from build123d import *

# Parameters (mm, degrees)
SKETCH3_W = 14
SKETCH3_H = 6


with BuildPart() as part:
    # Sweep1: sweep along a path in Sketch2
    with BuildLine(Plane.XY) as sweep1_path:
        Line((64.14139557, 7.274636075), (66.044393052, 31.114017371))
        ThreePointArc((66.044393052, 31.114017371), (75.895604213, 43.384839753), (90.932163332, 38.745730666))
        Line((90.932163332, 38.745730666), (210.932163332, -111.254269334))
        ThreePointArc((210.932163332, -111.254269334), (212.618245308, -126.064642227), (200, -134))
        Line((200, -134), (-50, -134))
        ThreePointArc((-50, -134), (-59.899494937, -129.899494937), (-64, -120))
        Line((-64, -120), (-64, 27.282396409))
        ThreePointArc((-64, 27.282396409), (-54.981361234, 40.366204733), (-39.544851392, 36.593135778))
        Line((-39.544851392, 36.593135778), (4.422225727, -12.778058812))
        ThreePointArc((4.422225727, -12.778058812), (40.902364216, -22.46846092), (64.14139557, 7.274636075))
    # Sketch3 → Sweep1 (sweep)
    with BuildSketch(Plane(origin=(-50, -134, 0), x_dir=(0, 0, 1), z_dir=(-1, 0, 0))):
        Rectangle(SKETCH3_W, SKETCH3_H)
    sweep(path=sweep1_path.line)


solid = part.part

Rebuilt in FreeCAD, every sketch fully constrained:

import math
import FreeCAD as App
import Part
import Sketcher

V = App.Vector


def add_polygon(sketch, points):
    """Adds a closed chain of lines whose ends are joined by coincident constraints."""
    first, n = sketch.GeometryCount, len(points)
    for a, b in zip(points, points[1:] + points[:1]):
        sketch.addGeometry(Part.LineSegment(App.Vector(*a, 0), App.Vector(*b, 0)), False)
    for i in range(n):
        sketch.addConstraint(Sketcher.Constraint("Coincident", first + i, 2, first + (i + 1) % n, 1))

doc = App.newDocument("Part")
body = doc.addObject("PartDesign::Body", "Body")

# Sketch on YZ plane
sketch1 = body.newObject("Sketcher::SketchObject", "Sketch")
sketch1.AttachmentSupport = (doc.getObject("YZ_Plane"), [""])
sketch1.MapMode = "FlatFace"
sketch1.AttachmentOffset = App.Placement(V(0, 0, -50), App.Rotation())
add_polygon(sketch1, [(-131, -7), (-137, -7), (-137, 7), (-131, 7)])  # lines 0-3
sketch1.addConstraint(Sketcher.Constraint("Horizontal", 0))
sketch1.addConstraint(Sketcher.Constraint("Vertical", 1))
sketch1.addConstraint(Sketcher.Constraint("Horizontal", 2))
sketch1.addConstraint(Sketcher.Constraint("Vertical", 3))
sketch1.addConstraint(Sketcher.Constraint("DistanceX", 0, 2, 0, 1, 6.0))
sketch1.addConstraint(Sketcher.Constraint("DistanceY", 1, 1, 1, 2, 14.0))
sketch1.addConstraint(Sketcher.Constraint("DistanceX", 0, 2, -1, 1, 137.0))
sketch1.addConstraint(Sketcher.Constraint("DistanceY", 0, 2, -1, 1, 7.0))

# Sketch on XY plane
sketch2 = body.newObject("Sketcher::SketchObject", "Sketch001")
sketch2.AttachmentSupport = (doc.getObject("XY_Plane"), [""])
sketch2.MapMode = "FlatFace"
sketch2.addGeometry(Part.LineSegment(V(64, 7, 0), V(66, 31, 0)), False)
sketch2.addGeometry(Part.ArcOfCircle(Part.Circle(V(80, 30, 0), V(0, 0, 1), 14), math.radians(39), math.radians(175)), False)
sketch2.addGeometry(Part.LineSegment(V(91, 39, 0), V(211, -111, 0)), False)
sketch2.addGeometry(Part.ArcOfCircle(Part.Circle(V(200, -120, 0), V(0, 0, 1), 14), math.radians(-90), math.radians(39)), False)
sketch2.addGeometry(Part.LineSegment(V(200, -134, 0), V(-50, -134, 0)), False)
sketch2.addGeometry(Part.ArcOfCircle(Part.Circle(V(-50, -120, 0), V(0, 0, 1), 14), math.radians(180), math.radians(270)), False)
sketch2.addGeometry(Part.LineSegment(V(-64, -120, 0), V(-64, 27, 0)), False)
sketch2.addGeometry(Part.ArcOfCircle(Part.Circle(V(-50, 27, 0), V(0, 0, 1), 14), math.radians(42), math.radians(180)), False)
sketch2.addGeometry(Part.LineSegment(V(-40, 37, 0), V(4, -13, 0)), False)
sketch2.addGeometry(Part.ArcOfCircle(Part.Circle(V(30, 10, 0), V(0, 0, 1), 34), math.radians(-138), math.radians(-5)), False)
sketch2.addConstraint(Sketcher.Constraint("Tangent", 0, 2, 1, 2))
sketch2.addConstraint(Sketcher.Constraint("Tangent", 1, 1, 2, 1))
sketch2.addConstraint(Sketcher.Constraint("Tangent", 2, 2, 3, 2))
sketch2.addConstraint(Sketcher.Constraint("Tangent", 3, 1, 4, 1))
sketch2.addConstraint(Sketcher.Constraint("Tangent", 4, 2, 5, 2))
sketch2.addConstraint(Sketcher.Constraint("Tangent", 5, 1, 6, 1))
sketch2.addConstraint(Sketcher.Constraint("Tangent", 6, 2, 7, 2))
sketch2.addConstraint(Sketcher.Constraint("Tangent", 7, 1, 8, 1))
sketch2.addConstraint(Sketcher.Constraint("Tangent", 8, 2, 9, 1))
sketch2.addConstraint(Sketcher.Constraint("Tangent", 9, 2, 0, 1))
sketch2.addConstraint(Sketcher.Constraint("Horizontal", 4))
sketch2.addConstraint(Sketcher.Constraint("Vertical", 6))
sketch2.addConstraint(Sketcher.Constraint("Equal", 1, 3))
sketch2.addConstraint(Sketcher.Constraint("Equal", 3, 5))
sketch2.addConstraint(Sketcher.Constraint("Equal", 5, 7))
sketch2.addConstraint(Sketcher.Constraint("Radius", 1, 14.0))
sketch2.addConstraint(Sketcher.Constraint("DistanceX", 4, 2, 4, 1, 250.0))
sketch2.addConstraint(Sketcher.Constraint("Radius", 9, 34.25))
sketch2.addConstraint(Sketcher.Constraint("DistanceX", -1, 1, 1, 3, 80.0))
sketch2.addConstraint(Sketcher.Constraint("DistanceY", -1, 1, 1, 3, 30.0))
sketch2.addConstraint(Sketcher.Constraint("DistanceX", -1, 1, 3, 3, 200.0))
sketch2.addConstraint(Sketcher.Constraint("DistanceY", 3, 3, -1, 1, 120.0))
sketch2.addConstraint(Sketcher.Constraint("DistanceX", -1, 1, 9, 3, 30.0))
sketch2.addConstraint(Sketcher.Constraint("DistanceY", -1, 1, 9, 3, 10.0))
sketch2.addConstraint(Sketcher.Constraint("DistanceY", 6, 1, 6, 2, 147.282396))
doc.recompute()

additivepipe = body.newObject("PartDesign::AdditivePipe", "AdditivePipe")
additivepipe.Profile = sketch1
additivepipe.Spine = (sketch2, ["Edge1", "Edge2", "Edge3", "Edge4", "Edge5", "Edge6", "Edge7", "Edge8", "Edge9", "Edge10"])

doc.recompute()
